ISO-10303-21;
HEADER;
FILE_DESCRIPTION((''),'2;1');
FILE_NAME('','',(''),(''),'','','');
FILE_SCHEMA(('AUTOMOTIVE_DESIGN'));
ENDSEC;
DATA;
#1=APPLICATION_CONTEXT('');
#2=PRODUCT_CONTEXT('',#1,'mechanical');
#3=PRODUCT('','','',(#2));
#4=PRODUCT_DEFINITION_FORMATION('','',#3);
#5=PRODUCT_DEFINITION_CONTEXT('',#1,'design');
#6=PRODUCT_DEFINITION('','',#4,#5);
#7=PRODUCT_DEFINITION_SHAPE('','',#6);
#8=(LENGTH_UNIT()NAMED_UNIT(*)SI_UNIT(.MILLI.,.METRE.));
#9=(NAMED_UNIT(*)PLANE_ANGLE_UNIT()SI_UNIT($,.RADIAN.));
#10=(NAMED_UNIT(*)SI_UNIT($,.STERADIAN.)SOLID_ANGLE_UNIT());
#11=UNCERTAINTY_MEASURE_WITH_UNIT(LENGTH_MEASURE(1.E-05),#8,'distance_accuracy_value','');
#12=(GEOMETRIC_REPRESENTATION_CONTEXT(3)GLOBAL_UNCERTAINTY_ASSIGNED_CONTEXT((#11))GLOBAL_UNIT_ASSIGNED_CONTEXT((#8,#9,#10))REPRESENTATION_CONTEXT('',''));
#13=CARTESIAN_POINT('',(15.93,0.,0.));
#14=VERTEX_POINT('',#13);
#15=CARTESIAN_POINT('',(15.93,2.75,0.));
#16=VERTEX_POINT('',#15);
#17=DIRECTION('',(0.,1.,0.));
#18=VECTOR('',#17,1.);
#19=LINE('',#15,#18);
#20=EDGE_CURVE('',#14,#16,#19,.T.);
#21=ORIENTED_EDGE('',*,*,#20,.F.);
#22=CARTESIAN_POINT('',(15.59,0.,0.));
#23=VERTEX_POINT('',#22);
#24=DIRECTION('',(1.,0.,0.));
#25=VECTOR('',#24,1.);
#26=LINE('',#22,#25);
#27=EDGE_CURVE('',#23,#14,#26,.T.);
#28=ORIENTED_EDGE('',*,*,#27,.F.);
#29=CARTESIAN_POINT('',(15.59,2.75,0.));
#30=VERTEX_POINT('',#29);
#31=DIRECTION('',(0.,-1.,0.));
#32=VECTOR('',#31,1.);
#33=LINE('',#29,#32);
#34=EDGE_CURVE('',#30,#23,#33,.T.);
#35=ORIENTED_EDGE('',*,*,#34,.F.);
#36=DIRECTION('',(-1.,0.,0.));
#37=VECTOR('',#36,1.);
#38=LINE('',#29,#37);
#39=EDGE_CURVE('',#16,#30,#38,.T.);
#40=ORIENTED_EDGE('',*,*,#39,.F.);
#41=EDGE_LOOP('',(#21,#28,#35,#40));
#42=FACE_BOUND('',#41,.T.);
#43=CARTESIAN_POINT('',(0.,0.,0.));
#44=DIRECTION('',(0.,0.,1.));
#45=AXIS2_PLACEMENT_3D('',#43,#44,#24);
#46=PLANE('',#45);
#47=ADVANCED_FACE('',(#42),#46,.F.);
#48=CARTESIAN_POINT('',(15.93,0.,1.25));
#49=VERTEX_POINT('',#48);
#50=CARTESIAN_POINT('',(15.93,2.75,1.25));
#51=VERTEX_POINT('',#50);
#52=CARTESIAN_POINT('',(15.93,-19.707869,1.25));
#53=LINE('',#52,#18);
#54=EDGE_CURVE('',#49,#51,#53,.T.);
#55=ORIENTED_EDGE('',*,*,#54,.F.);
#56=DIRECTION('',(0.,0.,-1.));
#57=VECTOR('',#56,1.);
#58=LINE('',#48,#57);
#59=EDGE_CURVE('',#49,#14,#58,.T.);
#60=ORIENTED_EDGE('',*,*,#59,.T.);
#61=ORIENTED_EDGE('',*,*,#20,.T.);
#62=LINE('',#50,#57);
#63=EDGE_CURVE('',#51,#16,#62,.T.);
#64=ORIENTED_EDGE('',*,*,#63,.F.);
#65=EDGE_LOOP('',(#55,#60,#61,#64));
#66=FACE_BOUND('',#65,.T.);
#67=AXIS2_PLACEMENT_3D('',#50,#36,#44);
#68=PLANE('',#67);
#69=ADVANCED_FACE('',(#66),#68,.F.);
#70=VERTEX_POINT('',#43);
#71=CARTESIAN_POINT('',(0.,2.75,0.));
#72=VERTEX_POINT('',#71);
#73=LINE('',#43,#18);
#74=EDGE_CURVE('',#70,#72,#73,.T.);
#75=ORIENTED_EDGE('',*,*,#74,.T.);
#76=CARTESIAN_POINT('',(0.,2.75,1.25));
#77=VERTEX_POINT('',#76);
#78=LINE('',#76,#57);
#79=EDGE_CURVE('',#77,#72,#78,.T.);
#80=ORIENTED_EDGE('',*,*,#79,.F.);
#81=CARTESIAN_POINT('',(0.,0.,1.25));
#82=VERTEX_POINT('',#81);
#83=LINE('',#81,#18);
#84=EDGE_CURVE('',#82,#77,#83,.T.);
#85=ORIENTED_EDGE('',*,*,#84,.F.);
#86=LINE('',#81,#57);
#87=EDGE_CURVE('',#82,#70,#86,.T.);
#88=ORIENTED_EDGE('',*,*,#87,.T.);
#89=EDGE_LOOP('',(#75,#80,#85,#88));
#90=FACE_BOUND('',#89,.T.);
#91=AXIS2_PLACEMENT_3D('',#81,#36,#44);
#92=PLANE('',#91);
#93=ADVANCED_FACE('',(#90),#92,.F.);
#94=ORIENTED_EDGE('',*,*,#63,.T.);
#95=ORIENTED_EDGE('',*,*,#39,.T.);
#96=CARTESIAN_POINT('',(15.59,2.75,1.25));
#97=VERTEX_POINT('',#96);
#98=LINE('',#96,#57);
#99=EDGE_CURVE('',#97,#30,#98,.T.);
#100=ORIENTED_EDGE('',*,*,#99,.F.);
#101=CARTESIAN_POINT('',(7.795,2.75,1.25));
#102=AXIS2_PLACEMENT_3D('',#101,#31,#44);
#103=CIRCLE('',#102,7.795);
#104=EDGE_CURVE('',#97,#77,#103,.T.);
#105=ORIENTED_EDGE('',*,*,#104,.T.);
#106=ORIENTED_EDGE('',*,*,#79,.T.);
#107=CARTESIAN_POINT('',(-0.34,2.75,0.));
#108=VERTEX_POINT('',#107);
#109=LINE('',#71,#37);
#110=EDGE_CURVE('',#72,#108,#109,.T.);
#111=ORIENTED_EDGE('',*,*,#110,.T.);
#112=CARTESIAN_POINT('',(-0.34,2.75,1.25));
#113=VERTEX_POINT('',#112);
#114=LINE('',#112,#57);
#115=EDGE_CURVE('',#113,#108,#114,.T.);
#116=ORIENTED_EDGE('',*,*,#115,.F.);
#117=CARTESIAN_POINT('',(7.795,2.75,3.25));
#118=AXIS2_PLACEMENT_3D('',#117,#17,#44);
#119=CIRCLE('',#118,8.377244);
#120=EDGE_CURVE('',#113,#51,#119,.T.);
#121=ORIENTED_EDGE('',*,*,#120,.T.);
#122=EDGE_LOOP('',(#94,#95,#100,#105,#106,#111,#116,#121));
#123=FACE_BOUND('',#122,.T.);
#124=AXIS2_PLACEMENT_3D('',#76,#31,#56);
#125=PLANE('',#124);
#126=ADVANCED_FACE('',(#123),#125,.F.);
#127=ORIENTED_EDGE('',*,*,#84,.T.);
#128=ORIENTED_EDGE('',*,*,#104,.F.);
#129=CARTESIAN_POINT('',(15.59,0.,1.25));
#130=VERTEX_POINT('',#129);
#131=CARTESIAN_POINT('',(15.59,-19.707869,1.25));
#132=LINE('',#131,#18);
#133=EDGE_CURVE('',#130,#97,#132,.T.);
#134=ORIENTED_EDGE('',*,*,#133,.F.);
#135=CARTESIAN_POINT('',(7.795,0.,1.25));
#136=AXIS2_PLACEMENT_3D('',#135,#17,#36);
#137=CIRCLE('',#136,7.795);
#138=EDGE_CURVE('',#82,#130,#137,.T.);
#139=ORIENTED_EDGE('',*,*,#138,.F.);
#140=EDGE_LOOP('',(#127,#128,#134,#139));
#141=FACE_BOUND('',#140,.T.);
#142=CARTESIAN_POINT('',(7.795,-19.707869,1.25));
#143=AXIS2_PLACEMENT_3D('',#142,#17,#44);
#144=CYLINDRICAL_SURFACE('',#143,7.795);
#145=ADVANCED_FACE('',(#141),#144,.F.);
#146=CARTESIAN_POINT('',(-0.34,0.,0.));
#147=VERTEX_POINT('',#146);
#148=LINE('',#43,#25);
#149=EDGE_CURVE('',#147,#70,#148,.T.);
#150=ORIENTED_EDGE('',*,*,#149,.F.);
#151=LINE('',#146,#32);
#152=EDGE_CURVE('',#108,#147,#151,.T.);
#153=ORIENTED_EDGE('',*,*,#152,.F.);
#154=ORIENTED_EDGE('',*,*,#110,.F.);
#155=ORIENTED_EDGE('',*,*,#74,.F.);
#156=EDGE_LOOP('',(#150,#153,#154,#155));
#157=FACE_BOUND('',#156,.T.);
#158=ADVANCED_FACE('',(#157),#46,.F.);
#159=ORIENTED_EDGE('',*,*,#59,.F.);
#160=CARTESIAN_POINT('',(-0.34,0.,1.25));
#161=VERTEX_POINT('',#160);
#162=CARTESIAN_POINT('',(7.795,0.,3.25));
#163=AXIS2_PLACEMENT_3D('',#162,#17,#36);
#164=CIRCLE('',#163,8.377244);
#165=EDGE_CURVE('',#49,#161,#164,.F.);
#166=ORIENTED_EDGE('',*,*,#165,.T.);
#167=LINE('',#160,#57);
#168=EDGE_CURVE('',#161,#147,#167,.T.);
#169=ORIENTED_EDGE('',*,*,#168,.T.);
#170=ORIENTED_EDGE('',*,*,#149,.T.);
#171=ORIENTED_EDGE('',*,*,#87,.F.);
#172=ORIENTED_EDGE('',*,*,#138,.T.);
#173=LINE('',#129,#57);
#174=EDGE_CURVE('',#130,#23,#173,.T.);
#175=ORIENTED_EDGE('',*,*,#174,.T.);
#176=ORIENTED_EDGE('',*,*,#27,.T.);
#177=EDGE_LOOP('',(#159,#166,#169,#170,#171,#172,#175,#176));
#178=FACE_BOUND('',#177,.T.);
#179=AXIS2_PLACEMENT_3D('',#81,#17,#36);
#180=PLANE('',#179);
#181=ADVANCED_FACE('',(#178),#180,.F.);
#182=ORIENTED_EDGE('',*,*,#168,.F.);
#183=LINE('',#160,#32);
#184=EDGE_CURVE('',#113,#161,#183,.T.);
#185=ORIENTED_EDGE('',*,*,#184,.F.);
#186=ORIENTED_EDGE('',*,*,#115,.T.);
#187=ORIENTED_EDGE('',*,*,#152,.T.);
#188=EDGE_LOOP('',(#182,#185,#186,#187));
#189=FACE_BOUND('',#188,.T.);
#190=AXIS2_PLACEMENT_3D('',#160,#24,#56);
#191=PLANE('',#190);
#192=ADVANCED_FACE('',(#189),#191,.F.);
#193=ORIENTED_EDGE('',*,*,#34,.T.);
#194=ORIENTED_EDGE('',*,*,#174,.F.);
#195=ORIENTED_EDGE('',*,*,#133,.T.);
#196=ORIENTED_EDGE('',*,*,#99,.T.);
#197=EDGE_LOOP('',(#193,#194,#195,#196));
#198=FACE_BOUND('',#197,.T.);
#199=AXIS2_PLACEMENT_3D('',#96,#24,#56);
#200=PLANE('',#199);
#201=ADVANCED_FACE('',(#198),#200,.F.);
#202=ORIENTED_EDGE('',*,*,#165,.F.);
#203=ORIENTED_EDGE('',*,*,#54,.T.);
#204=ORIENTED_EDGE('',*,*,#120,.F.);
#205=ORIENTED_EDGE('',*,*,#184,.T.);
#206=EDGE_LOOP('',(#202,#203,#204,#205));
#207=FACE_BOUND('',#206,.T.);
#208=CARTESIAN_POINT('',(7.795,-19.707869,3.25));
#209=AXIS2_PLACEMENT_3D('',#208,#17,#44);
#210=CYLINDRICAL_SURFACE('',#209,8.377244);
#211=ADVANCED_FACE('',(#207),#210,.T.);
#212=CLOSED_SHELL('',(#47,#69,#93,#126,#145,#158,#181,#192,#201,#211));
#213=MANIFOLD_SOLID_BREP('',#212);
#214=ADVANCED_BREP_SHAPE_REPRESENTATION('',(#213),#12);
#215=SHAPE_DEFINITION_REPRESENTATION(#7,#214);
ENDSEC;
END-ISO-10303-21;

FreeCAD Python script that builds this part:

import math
import FreeCAD as App
import Part
import Sketcher

doc = App.newDocument("Part")
body = doc.addObject("PartDesign::Body", "Body")

# Sketch on XY plane
sketch1 = doc.addObject("Sketcher::SketchObject", "Sketch")
body.addObject(sketch1)
sketch1.AttachmentSupport = (doc.XY_Plane, [""])
sketch1.MapMode = "FlatFace"
sketch1.addGeometry([
    Part.LineSegment(App.Vector(-0.34, 2.75, 0), App.Vector(-0.34, 0, 0)),
    Part.LineSegment(App.Vector(-0.34, 0, 0), App.Vector(0, 0, 0)),
    Part.LineSegment(App.Vector(0, 0, 0), App.Vector(0, 2.75, 0)),
    Part.LineSegment(App.Vector(0, 2.75, 0), App.Vector(-0.34, 2.75, 0)),
], False)
sketch1.addConstraint([
    Sketcher.Constraint("Coincident", 0, 2, 1, 1),
    Sketcher.Constraint("Coincident", 1, 2, 2, 1),
    Sketcher.Constraint("Coincident", 2, 2, 3, 1),
    Sketcher.Constraint("Coincident", 3, 2, 0, 1),
    Sketcher.Constraint("Vertical", 0),
    Sketcher.Constraint("Horizontal", 1),
    Sketcher.Constraint("Vertical", 2),
    Sketcher.Constraint("Horizontal", 3),
    Sketcher.Constraint("Coincident", 1, 2, -1, 1),
    Sketcher.Constraint("DistanceX", 1, 1, 1, 2, 0.34),
    Sketcher.Constraint("DistanceY", 0, 2, 0, 1, 2.75),
])
pad1 = doc.addObject("PartDesign::Pad", "Pad")
body.addObject(pad1)
pad1.Profile = sketch1
pad1.Length = 1.25
body2 = doc.addObject("PartDesign::Body", "Body001")

# Sketch on XY plane
sketch2 = doc.addObject("Sketcher::SketchObject", "Sketch001")
body2.addObject(sketch2)
sketch2.AttachmentSupport = (doc.getObject("XY_Plane001"), [""])
sketch2.MapMode = "FlatFace"
sketch2.addGeometry([
    Part.LineSegment(App.Vector(15.59, 2.75, 0), App.Vector(15.59, 0, 0)),
    Part.LineSegment(App.Vector(15.59, 0, 0), App.Vector(15.93, 0, 0)),
    Part.LineSegment(App.Vector(15.93, 0, 0), App.Vector(15.93, 2.75, 0)),
    Part.LineSegment(App.Vector(15.93, 2.75, 0), App.Vector(15.59, 2.75, 0)),
], False)
sketch2.addConstraint([
    Sketcher.Constraint("Coincident", 0, 2, 1, 1),
    Sketcher.Constraint("Coincident", 1, 2, 2, 1),
    Sketcher.Constraint("Coincident", 2, 2, 3, 1),
    Sketcher.Constraint("Coincident", 3, 2, 0, 1),
    Sketcher.Constraint("Vertical", 0),
    Sketcher.Constraint("Horizontal", 1),
    Sketcher.Constraint("Vertical", 2),
    Sketcher.Constraint("Horizontal", 3),
    Sketcher.Constraint("PointOnObject", 0, 2, -1),
    Sketcher.Constraint("DistanceX", 1, 1, 1, 2, 0.34),
    Sketcher.Constraint("DistanceY", 0, 2, 0, 1, 2.75),
    Sketcher.Constraint("DistanceX", -1, 1, 0, 2, 15.59),
])
pad2 = doc.addObject("PartDesign::Pad", "Pad001")
body2.addObject(pad2)
pad2.Profile = sketch2
pad2.Length = 1.25
body.AllowCompound = True
doc.recompute()

boolean = doc.addObject("PartDesign::Boolean", "Boolean")
body.addObject(boolean)
boolean.Type = "Fuse"
boolean.addObjects([body2])

# Sketch on XZ plane
sketch3 = doc.addObject("Sketcher::SketchObject", "Sketch002")
body.addObject(sketch3)
sketch3.AttachmentSupport = (doc.XZ_Plane, [""])
sketch3.MapMode = "FlatFace"
sketch3.AttachmentOffset = App.Placement(App.Vector(0, 0, -2.75), App.Rotation())
sketch3.addGeometry([
    Part.LineSegment(App.Vector(0, 1.25, 0), App.Vector(-0.34, 1.25, 0)),
    Part.ArcOfCircle(Part.Circle(App.Vector(7.79, 3.25, 0), App.Vector(0, 0, 1), 8.38), math.radians(-14), math.radians(194)),
    Part.LineSegment(App.Vector(15.93, 1.25, 0), App.Vector(15.59, 1.25, 0)),
    Part.ArcOfCircle(Part.Circle(App.Vector(7.79, 1.25, 0), App.Vector(0, 0, 1), 7.79), math.radians(0), math.radians(180)),
], False)
sketch3.addConstraint([
    Sketcher.Constraint("Coincident", 0, 2, 1, 2),
    Sketcher.Constraint("Coincident", 1, 1, 2, 1),
    Sketcher.Constraint("Coincident", 2, 2, 3, 1),
    Sketcher.Constraint("Coincident", 3, 2, 0, 1),
    Sketcher.Constraint("Horizontal", 0),
    Sketcher.Constraint("Horizontal", 2),
    Sketcher.Constraint("PointOnObject", 3, 2, -2),
    Sketcher.Constraint("Horizontal", 3, 3, 0, 2),
    Sketcher.Constraint("Horizontal", 0, 2, 1, 1),
    Sketcher.Constraint("Vertical", 1, 3, 3, 3),
    Sketcher.Constraint("Radius", 3, 7.795),
    Sketcher.Constraint("DistanceY", 3, 3, 1, 3, 2.0),
    Sketcher.Constraint("DistanceX", 0, 2, 0, 1, 0.34),
    Sketcher.Constraint("DistanceY", -1, 1, 1, 3, 3.25),
])
pad3 = doc.addObject("PartDesign::Pad", "Pad002")
body.addObject(pad3)
pad3.Profile = sketch3
pad3.Length = 2.75

doc.recompute()
